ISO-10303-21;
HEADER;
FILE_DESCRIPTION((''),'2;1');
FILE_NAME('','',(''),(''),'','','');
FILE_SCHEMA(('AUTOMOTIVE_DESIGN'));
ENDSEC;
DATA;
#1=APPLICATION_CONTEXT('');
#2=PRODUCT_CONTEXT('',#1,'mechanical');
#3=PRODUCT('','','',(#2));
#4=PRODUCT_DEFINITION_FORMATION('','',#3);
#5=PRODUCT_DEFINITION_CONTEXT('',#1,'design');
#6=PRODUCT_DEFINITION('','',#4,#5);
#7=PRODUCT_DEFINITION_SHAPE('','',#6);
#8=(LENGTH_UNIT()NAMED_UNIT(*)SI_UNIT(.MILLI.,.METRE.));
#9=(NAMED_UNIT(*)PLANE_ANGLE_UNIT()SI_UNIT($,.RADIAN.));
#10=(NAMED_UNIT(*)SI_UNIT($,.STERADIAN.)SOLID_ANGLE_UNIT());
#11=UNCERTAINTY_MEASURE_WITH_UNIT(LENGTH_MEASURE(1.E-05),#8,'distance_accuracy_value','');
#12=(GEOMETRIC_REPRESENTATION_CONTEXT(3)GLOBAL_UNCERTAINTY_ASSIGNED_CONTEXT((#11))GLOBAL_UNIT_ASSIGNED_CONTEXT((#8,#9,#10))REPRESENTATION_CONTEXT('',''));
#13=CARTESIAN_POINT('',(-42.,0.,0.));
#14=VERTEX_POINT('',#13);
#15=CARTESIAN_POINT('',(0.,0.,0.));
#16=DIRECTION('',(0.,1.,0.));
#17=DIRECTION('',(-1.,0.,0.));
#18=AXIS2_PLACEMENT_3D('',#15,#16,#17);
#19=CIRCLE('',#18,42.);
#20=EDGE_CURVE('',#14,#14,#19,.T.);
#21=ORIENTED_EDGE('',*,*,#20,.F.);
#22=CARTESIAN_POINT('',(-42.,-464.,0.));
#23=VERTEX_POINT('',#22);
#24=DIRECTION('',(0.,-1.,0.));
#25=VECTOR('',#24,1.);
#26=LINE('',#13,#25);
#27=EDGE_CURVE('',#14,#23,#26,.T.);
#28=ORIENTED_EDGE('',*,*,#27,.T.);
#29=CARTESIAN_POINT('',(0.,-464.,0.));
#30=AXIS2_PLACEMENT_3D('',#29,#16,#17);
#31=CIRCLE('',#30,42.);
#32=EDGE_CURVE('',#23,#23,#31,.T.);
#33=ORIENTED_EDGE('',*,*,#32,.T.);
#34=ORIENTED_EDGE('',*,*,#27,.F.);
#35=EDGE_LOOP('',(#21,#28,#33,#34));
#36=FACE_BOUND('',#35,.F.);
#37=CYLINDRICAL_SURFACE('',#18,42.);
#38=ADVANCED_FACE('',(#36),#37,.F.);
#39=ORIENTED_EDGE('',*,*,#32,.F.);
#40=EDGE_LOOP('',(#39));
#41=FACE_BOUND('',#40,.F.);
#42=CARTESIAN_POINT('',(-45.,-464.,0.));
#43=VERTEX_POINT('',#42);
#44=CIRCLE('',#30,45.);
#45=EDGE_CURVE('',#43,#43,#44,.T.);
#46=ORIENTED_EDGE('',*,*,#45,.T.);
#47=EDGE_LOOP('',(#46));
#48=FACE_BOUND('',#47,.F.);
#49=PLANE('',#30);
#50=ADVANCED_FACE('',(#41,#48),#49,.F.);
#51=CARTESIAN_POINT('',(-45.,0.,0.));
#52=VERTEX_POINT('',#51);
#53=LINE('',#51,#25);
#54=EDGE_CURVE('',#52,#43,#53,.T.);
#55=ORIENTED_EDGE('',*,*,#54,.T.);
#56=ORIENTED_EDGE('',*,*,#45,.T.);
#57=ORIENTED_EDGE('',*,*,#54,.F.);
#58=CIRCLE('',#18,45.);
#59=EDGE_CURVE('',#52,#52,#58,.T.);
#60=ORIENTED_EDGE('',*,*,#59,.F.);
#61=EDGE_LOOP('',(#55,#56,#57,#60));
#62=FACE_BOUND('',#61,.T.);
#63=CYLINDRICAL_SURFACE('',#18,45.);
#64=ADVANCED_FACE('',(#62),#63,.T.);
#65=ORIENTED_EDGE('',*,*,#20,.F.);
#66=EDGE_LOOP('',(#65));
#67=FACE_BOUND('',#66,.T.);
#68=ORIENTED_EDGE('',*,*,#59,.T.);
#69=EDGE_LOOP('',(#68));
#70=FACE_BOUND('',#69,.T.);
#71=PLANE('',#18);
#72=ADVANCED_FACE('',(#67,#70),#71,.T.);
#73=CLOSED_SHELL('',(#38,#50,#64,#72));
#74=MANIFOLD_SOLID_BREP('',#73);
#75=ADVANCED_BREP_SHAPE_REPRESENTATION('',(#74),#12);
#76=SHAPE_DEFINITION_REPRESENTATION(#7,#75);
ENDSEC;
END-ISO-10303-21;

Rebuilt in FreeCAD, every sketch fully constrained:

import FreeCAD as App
import Part
import Sketcher

V = App.Vector

doc = App.newDocument("Part")
body = doc.addObject("PartDesign::Body", "Body")

sketch1 = body.newObject("Sketcher::SketchObject", "Sketch")
sketch1.AttachmentSupport = (doc.getObject("XZ_Plane"), [""])
sketch1.MapMode = "FlatFace"
sketch1.addGeometry(Part.Circle(V(0, 0, 0), V(0, 0, 1), 45), False)
sketch1.addGeometry(Part.Circle(V(0, 0, 0), V(0, 0, 1), 42), False)
sketch1.addConstraint(Sketcher.Constraint("Coincident", 0, 3, -1, 1))
sketch1.addConstraint(Sketcher.Constraint("Coincident", 1, 3, -1, 1))
sketch1.addConstraint(Sketcher.Constraint("Diameter", 0, 90.0))
sketch1.addConstraint(Sketcher.Constraint("Diameter", 1, 84.0))
pad1 = body.newObject("PartDesign::Pad", "Pad")
pad1.Profile = sketch1
pad1.Length = 464

doc.recompute()
